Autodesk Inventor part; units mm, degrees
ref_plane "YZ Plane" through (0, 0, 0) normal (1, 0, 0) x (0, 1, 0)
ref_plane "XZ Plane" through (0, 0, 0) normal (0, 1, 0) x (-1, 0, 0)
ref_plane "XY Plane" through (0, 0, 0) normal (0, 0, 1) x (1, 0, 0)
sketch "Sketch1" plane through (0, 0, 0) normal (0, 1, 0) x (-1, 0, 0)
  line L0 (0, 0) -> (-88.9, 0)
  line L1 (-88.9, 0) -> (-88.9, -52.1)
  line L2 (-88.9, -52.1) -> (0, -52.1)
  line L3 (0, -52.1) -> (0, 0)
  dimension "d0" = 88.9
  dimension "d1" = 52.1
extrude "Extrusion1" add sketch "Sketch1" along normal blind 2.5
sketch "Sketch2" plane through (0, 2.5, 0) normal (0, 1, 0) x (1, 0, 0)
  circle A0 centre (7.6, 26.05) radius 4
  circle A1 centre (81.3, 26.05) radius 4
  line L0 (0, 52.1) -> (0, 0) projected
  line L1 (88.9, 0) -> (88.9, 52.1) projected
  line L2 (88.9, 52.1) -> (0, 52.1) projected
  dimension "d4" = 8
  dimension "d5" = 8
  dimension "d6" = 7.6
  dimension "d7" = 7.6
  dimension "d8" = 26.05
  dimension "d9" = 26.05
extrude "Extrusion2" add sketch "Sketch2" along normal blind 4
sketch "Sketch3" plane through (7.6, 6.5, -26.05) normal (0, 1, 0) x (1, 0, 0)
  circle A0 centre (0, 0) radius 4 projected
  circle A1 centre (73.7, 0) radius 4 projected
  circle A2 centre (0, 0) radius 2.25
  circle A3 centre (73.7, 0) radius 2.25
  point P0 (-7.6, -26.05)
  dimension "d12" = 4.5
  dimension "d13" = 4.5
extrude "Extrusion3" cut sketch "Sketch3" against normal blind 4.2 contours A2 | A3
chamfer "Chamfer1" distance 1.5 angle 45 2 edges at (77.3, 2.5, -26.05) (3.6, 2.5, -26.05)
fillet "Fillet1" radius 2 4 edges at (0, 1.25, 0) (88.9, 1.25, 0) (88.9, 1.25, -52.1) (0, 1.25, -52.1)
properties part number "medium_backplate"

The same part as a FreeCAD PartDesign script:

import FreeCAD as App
import Part
import Sketcher
Q = App.Units.Quantity


def edges_at(feature, points):
    """Names of the edges that pass closest to the given points."""
    edges = feature.Shape.Edges
    near = lambda p: min(range(len(edges)), key=lambda i: edges[i].distToShape(Part.Vertex(*p))[0])
    return sorted({f"Edge{near(p) + 1}" for p in points})


def add_polygon(sketch, points):
    """Adds a closed chain of lines whose ends are joined by coincident constraints."""
    first, n = sketch.GeometryCount, len(points)
    for a, b in zip(points, points[1:] + points[:1]):
        sketch.addGeometry(Part.LineSegment(App.Vector(*a, 0), App.Vector(*b, 0)), False)
    for i in range(n):
        sketch.addConstraint(Sketcher.Constraint("Coincident", first + i, 2, first + (i + 1) % n, 1))

doc = App.newDocument("Part")
body = doc.addObject("PartDesign::Body", "Body")

# Sketch on XZ plane
sketch1 = body.newObject("Sketcher::SketchObject", "Sketch")
sketch1.AttachmentSupport = (doc.getObject("XZ_Plane"), [""])
sketch1.MapMode = "FlatFace"
add_polygon(sketch1, [(0, -52), (0, 0), (89, 0), (89, -52)])  # lines 0-3
sketch1.addConstraint([
    Sketcher.Constraint("Vertical", 0),
    Sketcher.Constraint("Horizontal", 1),
    Sketcher.Constraint("Vertical", 2),
    Sketcher.Constraint("Horizontal", 3),
    Sketcher.Constraint("Coincident", 0, 2, -1, 1),
    Sketcher.Constraint("DistanceX", 1, 1, 1, 2, Q("88.9 mm")),
    Sketcher.Constraint("DistanceY", 0, 1, 0, 2, Q("52.1 mm")),
])
pad1 = body.newObject("PartDesign::Pad", "Pad")
pad1.Profile = sketch1
pad1.Length = 2.5
pad1.Reversed = True

# Sketch on XZ plane
sketch2 = body.newObject("Sketcher::SketchObject", "Sketch001")
sketch2.AttachmentSupport = (doc.getObject("XZ_Plane"), [""])
sketch2.MapMode = "FlatFace"
sketch2.AttachmentOffset = App.Placement(App.Vector(0, 0, -2.5), App.Rotation())
sketch2.addGeometry([
    Part.Circle(App.Vector(7.6, -26.1, 0), App.Vector(0, 0, 1), 4),
    Part.Circle(App.Vector(81.3, -26.1, 0), App.Vector(0, 0, 1), 4),
], False)
sketch2.addConstraint([
    Sketcher.Constraint("Equal", 0, 1),
    Sketcher.Constraint("Horizontal", 0, 3, 1, 3),
    Sketcher.Constraint("Diameter", 0, Q("8 mm")),
    Sketcher.Constraint("DistanceX", -1, 1, 0, 3, Q("7.6 mm")),
    Sketcher.Constraint("DistanceY", 0, 3, -1, 1, Q("26.05 mm")),
    Sketcher.Constraint("DistanceX", -1, 1, 1, 3, Q("81.3 mm")),
])
pad2 = body.newObject("PartDesign::Pad", "Pad001")
pad2.Profile = sketch2
pad2.Length = 4
pad2.Reversed = True

# Sketch on XZ plane
sketch3 = body.newObject("Sketcher::SketchObject", "Sketch002")
sketch3.AttachmentSupport = (doc.getObject("XZ_Plane"), [""])
sketch3.MapMode = "FlatFace"
sketch3.AttachmentOffset = App.Placement(App.Vector(0, 0, -6.5), App.Rotation())
sketch3.addGeometry([
    Part.Circle(App.Vector(7.6, -26.1, 0), App.Vector(0, 0, 1), 2.2),
    Part.Circle(App.Vector(81.3, -26.1, 0), App.Vector(0, 0, 1), 2.2),
], False)
sketch3.addConstraint([
    Sketcher.Constraint("Equal", 0, 1),
    Sketcher.Constraint("Horizontal", 0, 3, 1, 3),
    Sketcher.Constraint("Diameter", 0, Q("4.5 mm")),
    Sketcher.Constraint("DistanceX", -1, 1, 0, 3, Q("7.6 mm")),
    Sketcher.Constraint("DistanceX", -1, 1, 1, 3, Q("81.3 mm")),
    Sketcher.Constraint("DistanceY", 0, 3, -1, 1, Q("26.05 mm")),
])
pocket1 = body.newObject("PartDesign::Pocket", "Pocket")
pocket1.Profile = sketch3
pocket1.Length = 4.2
pocket1.Reversed = True
doc.recompute()

chamfer = body.newObject("PartDesign::Chamfer", "Chamfer")
chamfer.Base = (pocket1, edges_at(pocket1, [(77.3, 2.5, -26.05), (3.6, 2.5, -26.05)]))
chamfer.Size = 1.5
doc.recompute()

fillet = body.newObject("PartDesign::Fillet", "Fillet")
fillet.Base = (chamfer, edges_at(chamfer, [
    (0, 1.25, 0),
    (88.9, 1.25, 0),
    (88.9, 1.25, -52.1),
    (0, 1.25, -52.1),
]))
fillet.Radius = 2

doc.recompute()
